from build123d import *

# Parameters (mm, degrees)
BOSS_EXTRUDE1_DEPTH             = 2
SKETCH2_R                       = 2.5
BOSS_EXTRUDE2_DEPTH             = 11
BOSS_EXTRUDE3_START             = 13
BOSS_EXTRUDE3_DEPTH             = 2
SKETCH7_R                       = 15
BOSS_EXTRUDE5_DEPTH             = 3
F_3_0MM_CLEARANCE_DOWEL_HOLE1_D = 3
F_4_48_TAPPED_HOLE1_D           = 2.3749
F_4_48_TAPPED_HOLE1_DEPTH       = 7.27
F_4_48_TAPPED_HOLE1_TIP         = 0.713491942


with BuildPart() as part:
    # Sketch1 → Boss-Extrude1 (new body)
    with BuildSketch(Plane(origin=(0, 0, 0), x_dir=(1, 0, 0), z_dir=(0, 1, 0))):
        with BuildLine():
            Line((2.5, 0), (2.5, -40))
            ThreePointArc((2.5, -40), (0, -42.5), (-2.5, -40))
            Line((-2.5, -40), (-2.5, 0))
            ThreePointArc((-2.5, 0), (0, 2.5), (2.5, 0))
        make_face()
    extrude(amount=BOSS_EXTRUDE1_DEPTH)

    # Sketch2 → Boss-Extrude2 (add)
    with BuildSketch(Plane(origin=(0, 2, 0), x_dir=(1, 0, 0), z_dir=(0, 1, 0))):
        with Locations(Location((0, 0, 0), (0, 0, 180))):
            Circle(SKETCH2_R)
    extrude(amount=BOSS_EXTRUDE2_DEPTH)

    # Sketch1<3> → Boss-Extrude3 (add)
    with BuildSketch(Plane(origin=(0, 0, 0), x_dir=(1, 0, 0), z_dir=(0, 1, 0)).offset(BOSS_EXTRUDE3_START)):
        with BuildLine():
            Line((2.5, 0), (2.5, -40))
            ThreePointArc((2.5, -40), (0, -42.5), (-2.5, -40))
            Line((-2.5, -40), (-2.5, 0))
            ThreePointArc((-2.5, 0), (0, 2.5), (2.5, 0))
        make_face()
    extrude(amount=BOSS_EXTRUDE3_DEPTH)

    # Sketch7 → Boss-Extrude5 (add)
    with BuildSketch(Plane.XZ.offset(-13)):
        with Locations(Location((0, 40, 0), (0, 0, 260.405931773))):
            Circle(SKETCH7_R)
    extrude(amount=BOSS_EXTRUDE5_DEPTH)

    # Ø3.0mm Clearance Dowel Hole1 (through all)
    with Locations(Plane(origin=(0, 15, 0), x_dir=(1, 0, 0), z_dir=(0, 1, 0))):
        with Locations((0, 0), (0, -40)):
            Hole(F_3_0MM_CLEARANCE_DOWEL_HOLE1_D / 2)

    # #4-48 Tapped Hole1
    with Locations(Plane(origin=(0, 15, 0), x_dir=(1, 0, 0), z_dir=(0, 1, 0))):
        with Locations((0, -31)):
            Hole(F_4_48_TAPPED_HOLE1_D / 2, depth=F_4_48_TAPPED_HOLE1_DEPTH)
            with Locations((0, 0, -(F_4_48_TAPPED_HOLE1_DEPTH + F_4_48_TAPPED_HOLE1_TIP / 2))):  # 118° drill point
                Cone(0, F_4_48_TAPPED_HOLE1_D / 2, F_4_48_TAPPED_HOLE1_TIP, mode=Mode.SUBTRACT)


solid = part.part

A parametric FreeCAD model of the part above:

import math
import FreeCAD as App
import Part
import Sketcher

doc = App.newDocument("Part")
params = doc.addObject("Spreadsheet::Sheet", "Params")
for row, (alias, value) in enumerate([
    ("sketch1_radius", "2.5 mm"),
    ("sketch1_height", "40 mm"),
    ("pad1_length", "2 mm"),
    ("sketch2_diameter", "5 mm"),
    ("pad2_length", "11 mm"),
    ("sketch3_radius", "2.5 mm"),
    ("sketch3_height", "40 mm"),
    ("pad3_length", "2 mm"),
    ("sketch4_diameter", "30 mm"),
    ("pad4_length", "3 mm"),
    ("sketch5_diameter", "3 mm"),
    ("hole_diameter", "3 mm"),
    ("hole2_diameter", "2.3749 mm"),
    ("hole2_depth", "7.27 mm"),
], start=1):
    params.set(f"A{row}", alias)
    params.set(f"B{row}", "=" + value)
    params.setAlias(f"B{row}", alias)

body = doc.addObject("PartDesign::Body", "Body")

sketch1 = doc.addObject("Sketcher::SketchObject", "Sketch")
body.addObject(sketch1)
sketch1.AttachmentSupport = (doc.XZ_Plane, [""])
sketch1.MapMode = "FlatFace"
sketch1.addGeometry(Part.LineSegment(App.Vector(2.5, 40, 0), App.Vector(2.5, 0, 0)), False)
sketch1.addGeometry(Part.ArcOfCircle(Part.Circle(App.Vector(0, 0, 0), App.Vector(0, 0, 1), 2.5), math.radians(180), math.radians(360)), False)
sketch1.addGeometry(Part.LineSegment(App.Vector(-2.5, 0, 0), App.Vector(-2.5, 40, 0)), False)
sketch1.addGeometry(Part.ArcOfCircle(Part.Circle(App.Vector(0, 40, 0), App.Vector(0, 0, 1), 2.5), math.radians(0), math.radians(180)), False)
sketch1.addConstraint(Sketcher.Constraint("Tangent", 0, 2, 1, 2))
sketch1.addConstraint(Sketcher.Constraint("Tangent", 1, 1, 2, 1))
sketch1.addConstraint(Sketcher.Constraint("Tangent", 2, 2, 3, 2))
sketch1.addConstraint(Sketcher.Constraint("Tangent", 3, 1, 0, 1))
sketch1.addConstraint(Sketcher.Constraint("Vertical", 0))
sketch1.addConstraint(Sketcher.Constraint("Vertical", 2))
sketch1.addConstraint(Sketcher.Constraint("Coincident", 1, 3, -1, 1))
sketch1.addConstraint(Sketcher.Constraint("Radius", 1, 2.5))
sketch1.addConstraint(Sketcher.Constraint("DistanceY", 0, 2, 0, 1, 40.0))
sketch1.setExpression("Constraints[7]", "Params.sketch1_radius")
sketch1.setExpression("Constraints[8]", "Params.sketch1_height")
pad1 = doc.addObject("PartDesign::Pad", "Pad")
body.addObject(pad1)
pad1.Profile = sketch1
pad1.setExpression("Length", "Params.pad1_length")
pad1.Reversed = True

sketch2 = doc.addObject("Sketcher::SketchObject", "Sketch001")
body.addObject(sketch2)
sketch2.AttachmentSupport = (doc.XZ_Plane, [""])
sketch2.MapMode = "FlatFace"
sketch2.AttachmentOffset = App.Placement(App.Vector(0, 0, -2), App.Rotation())
sketch2.addGeometry(Part.Circle(App.Vector(0, 0, 0), App.Vector(0, 0, 1), 2.5), False)
sketch2.addConstraint(Sketcher.Constraint("Coincident", 0, 3, -1, 1))
sketch2.addConstraint(Sketcher.Constraint("Diameter", 0, 5.0))
sketch2.setExpression("Constraints[1]", "Params.sketch2_diameter")
pad2 = doc.addObject("PartDesign::Pad", "Pad001")
body.addObject(pad2)
pad2.Profile = sketch2
pad2.setExpression("Length", "Params.pad2_length")
pad2.Reversed = True

sketch3 = doc.addObject("Sketcher::SketchObject", "Sketch002")
body.addObject(sketch3)
sketch3.AttachmentSupport = (doc.XZ_Plane, [""])
sketch3.MapMode = "FlatFace"
sketch3.AttachmentOffset = App.Placement(App.Vector(0, 0, -13), App.Rotation())
sketch3.addGeometry(Part.LineSegment(App.Vector(2.5, 40, 0), App.Vector(2.5, 0, 0)), False)
sketch3.addGeometry(Part.ArcOfCircle(Part.Circle(App.Vector(0, 0, 0), App.Vector(0, 0, 1), 2.5), math.radians(180), math.radians(360)), False)
sketch3.addGeometry(Part.LineSegment(App.Vector(-2.5, 0, 0), App.Vector(-2.5, 40, 0)), False)
sketch3.addGeometry(Part.ArcOfCircle(Part.Circle(App.Vector(0, 40, 0), App.Vector(0, 0, 1), 2.5), math.radians(0), math.radians(180)), False)
sketch3.addConstraint(Sketcher.Constraint("Tangent", 0, 2, 1, 2))
sketch3.addConstraint(Sketcher.Constraint("Tangent", 1, 1, 2, 1))
sketch3.addConstraint(Sketcher.Constraint("Tangent", 2, 2, 3, 2))
sketch3.addConstraint(Sketcher.Constraint("Tangent", 3, 1, 0, 1))
sketch3.addConstraint(Sketcher.Constraint("Vertical", 0))
sketch3.addConstraint(Sketcher.Constraint("Vertical", 2))
sketch3.addConstraint(Sketcher.Constraint("Coincident", 1, 3, -1, 1))
sketch3.addConstraint(Sketcher.Constraint("Radius", 1, 2.5))
sketch3.addConstraint(Sketcher.Constraint("DistanceY", 0, 2, 0, 1, 40.0))
sketch3.setExpression("Constraints[7]", "Params.sketch3_radius")
sketch3.setExpression("Constraints[8]", "Params.sketch3_height")
pad3 = doc.addObject("PartDesign::Pad", "Pad002")
body.addObject(pad3)
pad3.Profile = sketch3
pad3.setExpression("Length", "Params.pad3_length")
pad3.Reversed = True

sketch4 = doc.addObject("Sketcher::SketchObject", "Sketch003")
body.addObject(sketch4)
sketch4.AttachmentSupport = (doc.XZ_Plane, [""])
sketch4.MapMode = "FlatFace"
sketch4.AttachmentOffset = App.Placement(App.Vector(0, 0, -13), App.Rotation())
sketch4.addGeometry(Part.Circle(App.Vector(0, 40, 0), App.Vector(0, 0, 1), 15), False)
sketch4.addConstraint(Sketcher.Constraint("PointOnObject", 0, 3, -2))
sketch4.addConstraint(Sketcher.Constraint("Diameter", 0, 30.0))
sketch4.addConstraint(Sketcher.Constraint("DistanceY", -1, 1, 0, 3, 40.0))
sketch4.setExpression("Constraints[1]", "Params.sketch4_diameter")
pad4 = doc.addObject("PartDesign::Pad", "Pad003")
body.addObject(pad4)
pad4.Profile = sketch4
pad4.setExpression("Length", "Params.pad4_length")

sketch5 = doc.addObject("Sketcher::SketchObject", "Sketch004")
body.addObject(sketch5)
sketch5.AttachmentSupport = (doc.XZ_Plane, [""])
sketch5.MapMode = "FlatFace"
sketch5.AttachmentOffset = App.Placement(App.Vector(0, 0, -15), App.Rotation())
sketch5.addGeometry(Part.Circle(App.Vector(0, 0, 0), App.Vector(0, 0, 1), 1.5), False)
sketch5.addGeometry(Part.Circle(App.Vector(0, 40, 0), App.Vector(0, 0, 1), 1.5), False)
sketch5.addConstraint(Sketcher.Constraint("Coincident", 0, 3, -1, 1))
sketch5.addConstraint(Sketcher.Constraint("Equal", 0, 1))
sketch5.addConstraint(Sketcher.Constraint("PointOnObject", 1, 3, -2))
sketch5.addConstraint(Sketcher.Constraint("Diameter", 0, 3.0))
sketch5.addConstraint(Sketcher.Constraint("DistanceY", -1, 1, 1, 3, 40.0))
sketch5.setExpression("Constraints[3]", "Params.sketch5_diameter")
doc.recompute()
hole = doc.addObject("PartDesign::Hole", "Hole")
body.addObject(hole)
hole.Profile = sketch5
hole.ThreadType = "None"
hole.setExpression("Diameter", "Params.hole_diameter")
hole.DepthType = "ThroughAll"
hole.Reversed = True

sketch6 = doc.addObject("Sketcher::SketchObject", "Sketch005")
body.addObject(sketch6)
sketch6.AttachmentSupport = (doc.XZ_Plane, [""])
sketch6.MapMode = "FlatFace"
sketch6.AttachmentOffset = App.Placement(App.Vector(0, 0, -15), App.Rotation())
sketch6.addGeometry(Part.Circle(App.Vector(0, 31, 0), App.Vector(0, 0, 1), 1.2), False)
sketch6.addConstraint(Sketcher.Constraint("PointOnObject", 0, 3, -2))
sketch6.addConstraint(Sketcher.Constraint("DistanceY", -1, 1, 0, 3, 31.0))
sketch6.addConstraint(Sketcher.Constraint("Diameter", 0, 2.3749))
doc.recompute()
hole2 = doc.addObject("PartDesign::Hole", "Hole001")
body.addObject(hole2)
hole2.Profile = sketch6
hole2.ThreadType = "None"
hole2.setExpression("Diameter", "Params.hole2_diameter")
hole2.DepthType = "Dimension"
hole2.setExpression("Depth", "Params.hole2_depth")
hole2.DrillPoint = "Angled"
hole2.DrillPointAngle = 118
hole2.Reversed = True

doc.recompute()
